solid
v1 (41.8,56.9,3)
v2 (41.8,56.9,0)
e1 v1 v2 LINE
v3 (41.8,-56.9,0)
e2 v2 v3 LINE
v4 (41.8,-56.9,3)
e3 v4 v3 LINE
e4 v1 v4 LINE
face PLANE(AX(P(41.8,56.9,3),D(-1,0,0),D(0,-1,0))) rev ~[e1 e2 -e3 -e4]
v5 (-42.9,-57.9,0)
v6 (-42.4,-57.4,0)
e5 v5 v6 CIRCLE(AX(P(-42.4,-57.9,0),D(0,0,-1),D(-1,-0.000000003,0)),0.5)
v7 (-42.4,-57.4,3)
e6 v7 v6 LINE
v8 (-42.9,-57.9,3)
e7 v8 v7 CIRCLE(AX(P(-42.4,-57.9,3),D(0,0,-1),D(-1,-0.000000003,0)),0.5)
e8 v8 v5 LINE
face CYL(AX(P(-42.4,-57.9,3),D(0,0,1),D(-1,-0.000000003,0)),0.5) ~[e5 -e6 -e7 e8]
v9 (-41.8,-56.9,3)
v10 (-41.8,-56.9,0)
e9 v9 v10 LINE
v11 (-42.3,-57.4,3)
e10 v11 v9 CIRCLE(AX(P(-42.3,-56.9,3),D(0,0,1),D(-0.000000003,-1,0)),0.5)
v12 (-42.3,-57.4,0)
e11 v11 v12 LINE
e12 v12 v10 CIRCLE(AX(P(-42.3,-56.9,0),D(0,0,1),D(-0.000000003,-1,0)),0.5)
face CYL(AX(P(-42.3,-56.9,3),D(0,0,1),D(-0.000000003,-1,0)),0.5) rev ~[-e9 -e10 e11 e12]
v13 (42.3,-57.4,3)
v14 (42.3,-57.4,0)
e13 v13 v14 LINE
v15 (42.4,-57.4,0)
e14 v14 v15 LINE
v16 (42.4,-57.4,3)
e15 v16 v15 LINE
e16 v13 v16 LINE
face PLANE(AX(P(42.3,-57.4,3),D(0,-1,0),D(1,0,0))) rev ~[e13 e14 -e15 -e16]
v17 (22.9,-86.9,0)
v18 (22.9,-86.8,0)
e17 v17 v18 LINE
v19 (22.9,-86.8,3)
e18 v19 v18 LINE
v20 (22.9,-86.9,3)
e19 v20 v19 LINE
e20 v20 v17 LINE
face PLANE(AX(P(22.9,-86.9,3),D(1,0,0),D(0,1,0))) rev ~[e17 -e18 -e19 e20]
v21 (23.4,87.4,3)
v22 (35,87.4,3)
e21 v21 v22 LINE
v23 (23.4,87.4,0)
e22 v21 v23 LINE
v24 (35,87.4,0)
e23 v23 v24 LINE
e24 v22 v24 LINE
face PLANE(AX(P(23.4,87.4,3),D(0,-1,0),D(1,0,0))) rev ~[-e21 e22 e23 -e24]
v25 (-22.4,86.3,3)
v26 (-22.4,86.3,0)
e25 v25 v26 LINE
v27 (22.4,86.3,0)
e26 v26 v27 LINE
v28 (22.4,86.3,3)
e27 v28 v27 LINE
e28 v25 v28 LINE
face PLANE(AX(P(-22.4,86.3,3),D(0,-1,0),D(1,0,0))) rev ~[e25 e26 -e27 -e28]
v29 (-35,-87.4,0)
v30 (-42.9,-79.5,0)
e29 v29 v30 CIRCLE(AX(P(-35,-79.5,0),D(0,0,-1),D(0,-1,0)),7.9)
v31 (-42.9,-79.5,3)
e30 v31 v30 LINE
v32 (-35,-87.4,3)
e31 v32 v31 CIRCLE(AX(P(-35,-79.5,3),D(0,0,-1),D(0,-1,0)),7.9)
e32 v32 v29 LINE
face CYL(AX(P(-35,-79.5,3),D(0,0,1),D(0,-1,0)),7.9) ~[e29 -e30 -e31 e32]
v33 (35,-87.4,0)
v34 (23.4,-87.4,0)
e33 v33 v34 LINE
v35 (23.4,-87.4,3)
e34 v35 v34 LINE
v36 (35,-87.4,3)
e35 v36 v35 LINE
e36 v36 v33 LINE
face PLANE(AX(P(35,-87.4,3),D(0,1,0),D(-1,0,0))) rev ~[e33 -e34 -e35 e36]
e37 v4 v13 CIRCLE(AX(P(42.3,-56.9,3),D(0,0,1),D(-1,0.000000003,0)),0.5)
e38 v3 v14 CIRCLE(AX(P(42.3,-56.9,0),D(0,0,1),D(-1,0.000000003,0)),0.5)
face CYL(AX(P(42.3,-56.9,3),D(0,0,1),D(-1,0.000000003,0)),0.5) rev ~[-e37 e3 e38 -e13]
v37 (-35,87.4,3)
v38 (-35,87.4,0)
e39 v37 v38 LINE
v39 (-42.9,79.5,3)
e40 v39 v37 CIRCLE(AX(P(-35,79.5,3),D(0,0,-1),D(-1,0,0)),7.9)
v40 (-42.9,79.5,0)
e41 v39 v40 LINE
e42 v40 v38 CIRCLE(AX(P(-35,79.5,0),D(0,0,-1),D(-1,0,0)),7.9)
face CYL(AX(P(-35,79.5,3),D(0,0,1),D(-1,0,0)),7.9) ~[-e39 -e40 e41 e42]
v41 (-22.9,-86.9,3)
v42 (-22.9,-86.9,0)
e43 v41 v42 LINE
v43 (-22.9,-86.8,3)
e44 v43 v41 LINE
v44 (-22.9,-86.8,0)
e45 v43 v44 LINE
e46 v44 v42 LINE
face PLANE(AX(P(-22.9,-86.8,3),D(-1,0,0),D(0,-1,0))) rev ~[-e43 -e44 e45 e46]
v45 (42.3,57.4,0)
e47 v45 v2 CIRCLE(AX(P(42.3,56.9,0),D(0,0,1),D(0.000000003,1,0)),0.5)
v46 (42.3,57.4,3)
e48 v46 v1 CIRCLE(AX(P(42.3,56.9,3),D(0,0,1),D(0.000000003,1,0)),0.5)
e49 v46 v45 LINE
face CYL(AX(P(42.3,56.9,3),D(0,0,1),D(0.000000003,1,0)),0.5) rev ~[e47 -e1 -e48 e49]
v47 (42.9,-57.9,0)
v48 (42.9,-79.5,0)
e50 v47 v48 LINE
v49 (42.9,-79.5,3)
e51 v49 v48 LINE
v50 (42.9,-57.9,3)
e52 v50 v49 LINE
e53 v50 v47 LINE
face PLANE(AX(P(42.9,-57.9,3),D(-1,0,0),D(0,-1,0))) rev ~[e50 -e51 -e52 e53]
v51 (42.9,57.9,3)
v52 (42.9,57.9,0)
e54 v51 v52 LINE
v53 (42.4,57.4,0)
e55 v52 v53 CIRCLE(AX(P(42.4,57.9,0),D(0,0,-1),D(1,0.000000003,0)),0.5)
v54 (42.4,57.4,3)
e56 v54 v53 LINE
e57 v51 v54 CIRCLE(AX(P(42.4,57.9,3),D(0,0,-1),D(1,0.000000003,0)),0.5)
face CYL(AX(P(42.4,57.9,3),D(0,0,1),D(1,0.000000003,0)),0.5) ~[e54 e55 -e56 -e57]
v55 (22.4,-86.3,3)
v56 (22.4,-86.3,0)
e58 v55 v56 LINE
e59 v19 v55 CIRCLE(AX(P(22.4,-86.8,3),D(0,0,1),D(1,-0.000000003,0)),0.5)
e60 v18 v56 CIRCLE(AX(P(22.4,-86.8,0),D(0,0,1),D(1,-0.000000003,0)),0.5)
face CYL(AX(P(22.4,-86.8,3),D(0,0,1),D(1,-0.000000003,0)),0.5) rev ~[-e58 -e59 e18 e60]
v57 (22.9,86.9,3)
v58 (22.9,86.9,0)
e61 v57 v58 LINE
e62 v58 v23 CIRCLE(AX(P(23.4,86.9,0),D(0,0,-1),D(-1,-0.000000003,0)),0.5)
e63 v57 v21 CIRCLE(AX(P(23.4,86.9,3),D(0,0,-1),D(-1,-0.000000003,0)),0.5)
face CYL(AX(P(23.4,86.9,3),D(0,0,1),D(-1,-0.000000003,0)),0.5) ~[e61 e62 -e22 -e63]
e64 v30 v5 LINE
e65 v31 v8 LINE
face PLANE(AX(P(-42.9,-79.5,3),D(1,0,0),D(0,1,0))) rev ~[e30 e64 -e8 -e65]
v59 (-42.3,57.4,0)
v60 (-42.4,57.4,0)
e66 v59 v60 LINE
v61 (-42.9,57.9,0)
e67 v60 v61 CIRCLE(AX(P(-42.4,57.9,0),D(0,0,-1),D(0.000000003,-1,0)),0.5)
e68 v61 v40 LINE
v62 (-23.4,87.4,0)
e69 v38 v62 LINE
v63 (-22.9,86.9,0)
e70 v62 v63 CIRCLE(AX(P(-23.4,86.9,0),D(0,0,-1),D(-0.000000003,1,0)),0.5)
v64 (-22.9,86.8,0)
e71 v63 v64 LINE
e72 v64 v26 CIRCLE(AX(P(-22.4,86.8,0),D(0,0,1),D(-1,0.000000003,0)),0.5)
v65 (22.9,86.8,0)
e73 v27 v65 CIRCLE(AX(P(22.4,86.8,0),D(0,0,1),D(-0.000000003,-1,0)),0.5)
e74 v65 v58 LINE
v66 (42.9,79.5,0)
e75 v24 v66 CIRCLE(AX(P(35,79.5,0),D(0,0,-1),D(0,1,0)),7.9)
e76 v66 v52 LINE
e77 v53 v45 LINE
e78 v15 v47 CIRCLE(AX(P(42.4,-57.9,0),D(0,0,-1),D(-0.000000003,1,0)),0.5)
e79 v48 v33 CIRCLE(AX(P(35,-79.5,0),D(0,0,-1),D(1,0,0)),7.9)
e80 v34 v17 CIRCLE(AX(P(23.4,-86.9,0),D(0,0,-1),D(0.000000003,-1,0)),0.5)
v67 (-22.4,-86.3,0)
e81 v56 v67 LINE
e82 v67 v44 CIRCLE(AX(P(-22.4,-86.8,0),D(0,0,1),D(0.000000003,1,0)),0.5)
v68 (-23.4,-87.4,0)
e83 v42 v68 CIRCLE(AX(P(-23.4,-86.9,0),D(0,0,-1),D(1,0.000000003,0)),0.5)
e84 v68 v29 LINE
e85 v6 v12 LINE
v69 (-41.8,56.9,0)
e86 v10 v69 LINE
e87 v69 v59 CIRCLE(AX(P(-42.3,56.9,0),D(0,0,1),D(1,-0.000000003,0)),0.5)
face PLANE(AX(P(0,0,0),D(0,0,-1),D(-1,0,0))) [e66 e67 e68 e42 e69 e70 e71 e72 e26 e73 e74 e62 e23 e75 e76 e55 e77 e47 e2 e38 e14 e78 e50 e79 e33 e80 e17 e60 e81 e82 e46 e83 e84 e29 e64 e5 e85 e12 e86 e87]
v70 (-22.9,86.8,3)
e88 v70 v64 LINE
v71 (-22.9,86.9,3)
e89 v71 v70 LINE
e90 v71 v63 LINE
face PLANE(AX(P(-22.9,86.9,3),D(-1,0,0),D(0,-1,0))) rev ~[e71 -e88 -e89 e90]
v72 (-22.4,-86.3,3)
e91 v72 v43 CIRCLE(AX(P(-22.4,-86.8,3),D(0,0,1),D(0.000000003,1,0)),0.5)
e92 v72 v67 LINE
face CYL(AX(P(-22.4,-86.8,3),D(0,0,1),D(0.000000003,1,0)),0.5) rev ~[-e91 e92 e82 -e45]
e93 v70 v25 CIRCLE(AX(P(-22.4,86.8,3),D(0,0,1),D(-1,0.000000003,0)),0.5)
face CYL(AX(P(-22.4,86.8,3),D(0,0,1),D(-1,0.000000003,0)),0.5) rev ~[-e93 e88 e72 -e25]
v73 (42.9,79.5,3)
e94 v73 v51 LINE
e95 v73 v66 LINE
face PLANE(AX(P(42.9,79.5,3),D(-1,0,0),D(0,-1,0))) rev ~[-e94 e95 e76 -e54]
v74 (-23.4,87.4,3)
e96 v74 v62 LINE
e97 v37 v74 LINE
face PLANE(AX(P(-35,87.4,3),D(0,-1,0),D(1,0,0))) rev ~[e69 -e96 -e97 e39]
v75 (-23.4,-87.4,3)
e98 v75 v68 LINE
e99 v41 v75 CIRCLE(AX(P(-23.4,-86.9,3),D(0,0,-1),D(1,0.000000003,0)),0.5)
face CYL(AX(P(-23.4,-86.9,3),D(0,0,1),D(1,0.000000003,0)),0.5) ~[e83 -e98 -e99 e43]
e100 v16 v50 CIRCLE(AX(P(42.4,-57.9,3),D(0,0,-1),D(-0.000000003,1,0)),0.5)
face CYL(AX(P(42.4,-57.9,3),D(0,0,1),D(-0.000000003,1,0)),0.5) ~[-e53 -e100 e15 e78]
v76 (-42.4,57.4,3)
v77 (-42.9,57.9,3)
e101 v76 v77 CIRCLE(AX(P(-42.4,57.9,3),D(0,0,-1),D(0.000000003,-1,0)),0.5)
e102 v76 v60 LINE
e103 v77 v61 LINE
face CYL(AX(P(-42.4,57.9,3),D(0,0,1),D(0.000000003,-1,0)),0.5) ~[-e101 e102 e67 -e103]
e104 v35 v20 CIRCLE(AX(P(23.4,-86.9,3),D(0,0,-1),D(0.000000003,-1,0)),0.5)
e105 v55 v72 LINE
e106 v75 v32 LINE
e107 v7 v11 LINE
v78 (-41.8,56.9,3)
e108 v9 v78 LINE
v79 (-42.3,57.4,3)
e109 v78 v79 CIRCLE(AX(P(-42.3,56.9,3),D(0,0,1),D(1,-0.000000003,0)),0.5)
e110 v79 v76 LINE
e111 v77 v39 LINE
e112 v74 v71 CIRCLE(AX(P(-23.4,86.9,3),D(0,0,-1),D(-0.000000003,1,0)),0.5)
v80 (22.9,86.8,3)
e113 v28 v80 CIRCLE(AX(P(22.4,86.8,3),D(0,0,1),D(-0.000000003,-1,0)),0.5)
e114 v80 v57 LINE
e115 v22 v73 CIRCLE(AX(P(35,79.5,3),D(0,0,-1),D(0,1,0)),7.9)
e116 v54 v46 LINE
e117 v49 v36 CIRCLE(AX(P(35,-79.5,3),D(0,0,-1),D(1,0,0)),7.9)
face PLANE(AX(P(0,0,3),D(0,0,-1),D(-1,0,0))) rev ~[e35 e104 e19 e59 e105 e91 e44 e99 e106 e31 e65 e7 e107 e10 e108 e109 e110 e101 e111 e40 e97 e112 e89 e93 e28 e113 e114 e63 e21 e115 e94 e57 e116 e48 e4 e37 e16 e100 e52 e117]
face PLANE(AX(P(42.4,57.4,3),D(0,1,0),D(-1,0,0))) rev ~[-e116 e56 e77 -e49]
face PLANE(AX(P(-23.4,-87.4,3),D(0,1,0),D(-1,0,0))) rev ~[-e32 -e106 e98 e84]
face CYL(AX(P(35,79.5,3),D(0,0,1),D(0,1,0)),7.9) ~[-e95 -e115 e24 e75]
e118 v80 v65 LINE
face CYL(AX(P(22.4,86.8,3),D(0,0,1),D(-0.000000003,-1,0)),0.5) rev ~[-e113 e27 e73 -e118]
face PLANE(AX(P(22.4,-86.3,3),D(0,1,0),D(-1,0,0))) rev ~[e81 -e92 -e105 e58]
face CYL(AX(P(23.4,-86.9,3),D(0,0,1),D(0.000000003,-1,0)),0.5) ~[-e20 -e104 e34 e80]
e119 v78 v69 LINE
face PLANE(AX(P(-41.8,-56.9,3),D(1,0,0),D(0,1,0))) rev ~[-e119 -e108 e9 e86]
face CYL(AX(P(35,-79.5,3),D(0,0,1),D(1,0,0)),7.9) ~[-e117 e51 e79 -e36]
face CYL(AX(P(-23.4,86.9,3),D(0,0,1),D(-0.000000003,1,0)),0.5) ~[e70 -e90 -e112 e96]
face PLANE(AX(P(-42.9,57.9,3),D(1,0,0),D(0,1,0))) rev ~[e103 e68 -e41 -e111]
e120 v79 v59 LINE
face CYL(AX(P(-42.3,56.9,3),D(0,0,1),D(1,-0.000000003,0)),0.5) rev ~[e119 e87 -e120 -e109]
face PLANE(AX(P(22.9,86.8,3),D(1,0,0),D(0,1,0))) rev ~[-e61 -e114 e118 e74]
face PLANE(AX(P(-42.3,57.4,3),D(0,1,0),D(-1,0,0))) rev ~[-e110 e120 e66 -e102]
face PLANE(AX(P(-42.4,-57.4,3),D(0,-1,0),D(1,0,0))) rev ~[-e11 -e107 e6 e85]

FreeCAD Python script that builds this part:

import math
import FreeCAD as App
import Part
import Sketcher

V = App.Vector
Q = App.Units.Quantity

doc = App.newDocument("Part")
params = doc.addObject("Spreadsheet::Sheet", "Params")
for row, (alias, value) in enumerate([
    ("sketch1_radius", "0.5 mm"),
    ("sketch1_radius2", "7.9 mm"),
    ("sketch1_width", "0.1 mm"),
    ("sketch1_width2", "11.6 mm"),
    ("sketch1_width3", "44.8 mm"),
    ("pad1_length", "3 mm"),
], start=1):
    params.set(f"A{row}", alias)
    params.set(f"B{row}", "=" + value)
    params.setAlias(f"B{row}", alias)

body = doc.addObject("PartDesign::Body", "Body")

sketch1 = doc.addObject("Sketcher::SketchObject", "Sketch")
body.addObject(sketch1)
sketch1.AttachmentSupport = (doc.XY_Plane, [""])
sketch1.MapMode = "FlatFace"
sketch1.AttachmentOffset = App.Placement(V(0, 0, 3), App.Rotation())
sketch1.addGeometry([
    Part.LineSegment(V(42.3, 57.4, 0), V(42.4, 57.4, 0)),
    Part.ArcOfCircle(Part.Circle(V(42.4, 57.9, 0), V(0, 0, 1), 0.5), math.radians(-90), math.radians(0)),
    Part.LineSegment(V(42.9, 57.9, 0), V(42.9, 79.5, 0)),
    Part.ArcOfCircle(Part.Circle(V(35, 79.5, 0), V(0, 0, 1), 7.9), math.radians(0), math.radians(90)),
    Part.LineSegment(V(35, 87.4, 0), V(23.4, 87.4, 0)),
    Part.ArcOfCircle(Part.Circle(V(23.4, 86.9, 0), V(0, 0, 1), 0.5), math.radians(90), math.radians(180)),
    Part.LineSegment(V(22.9, 86.9, 0), V(22.9, 86.8, 0)),
    Part.ArcOfCircle(Part.Circle(V(22.4, 86.8, 0), V(0, 0, 1), 0.5), math.radians(-90), math.radians(0)),
    Part.LineSegment(V(22.4, 86.3, 0), V(-22.4, 86.3, 0)),
    Part.ArcOfCircle(Part.Circle(V(-22.4, 86.8, 0), V(0, 0, 1), 0.5), math.radians(180), math.radians(270)),
    Part.LineSegment(V(-22.9, 86.8, 0), V(-22.9, 86.9, 0)),
    Part.ArcOfCircle(Part.Circle(V(-23.4, 86.9, 0), V(0, 0, 1), 0.5), math.radians(0), math.radians(90)),
    Part.LineSegment(V(-23.4, 87.4, 0), V(-35, 87.4, 0)),
    Part.ArcOfCircle(Part.Circle(V(-35, 79.5, 0), V(0, 0, 1), 7.9), math.radians(90), math.radians(180)),
    Part.LineSegment(V(-42.9, 79.5, 0), V(-42.9, 57.9, 0)),
    Part.ArcOfCircle(Part.Circle(V(-42.4, 57.9, 0), V(0, 0, 1), 0.5), math.radians(180), math.radians(270)),
    Part.LineSegment(V(-42.4, 57.4, 0), V(-42.3, 57.4, 0)),
    Part.ArcOfCircle(Part.Circle(V(-42.3, 56.9, 0), V(0, 0, 1), 0.5), math.radians(0), math.radians(90)),
    Part.LineSegment(V(-41.8, 56.9, 0), V(-41.8, -56.9, 0)),
    Part.ArcOfCircle(Part.Circle(V(-42.3, -56.9, 0), V(0, 0, 1), 0.5), math.radians(-90), math.radians(0)),
    Part.LineSegment(V(-42.3, -57.4, 0), V(-42.4, -57.4, 0)),
    Part.ArcOfCircle(Part.Circle(V(-42.4, -57.9, 0), V(0, 0, 1), 0.5), math.radians(90), math.radians(180)),
    Part.LineSegment(V(-42.9, -57.9, 0), V(-42.9, -79.5, 0)),
    Part.ArcOfCircle(Part.Circle(V(-35, -79.5, 0), V(0, 0, 1), 7.9), math.radians(-180), math.radians(-90)),
    Part.LineSegment(V(-35, -87.4, 0), V(-23.4, -87.4, 0)),
    Part.ArcOfCircle(Part.Circle(V(-23.4, -86.9, 0), V(0, 0, 1), 0.5), math.radians(-90), math.radians(0)),
    Part.LineSegment(V(-22.9, -86.9, 0), V(-22.9, -86.8, 0)),
    Part.ArcOfCircle(Part.Circle(V(-22.4, -86.8, 0), V(0, 0, 1), 0.5), math.radians(90), math.radians(180)),
    Part.LineSegment(V(-22.4, -86.3, 0), V(22.4, -86.3, 0)),
    Part.ArcOfCircle(Part.Circle(V(22.4, -86.8, 0), V(0, 0, 1), 0.5), math.radians(0), math.radians(90)),
    Part.LineSegment(V(22.9, -86.8, 0), V(22.9, -86.9, 0)),
    Part.ArcOfCircle(Part.Circle(V(23.4, -86.9, 0), V(0, 0, 1), 0.5), math.radians(180), math.radians(270)),
    Part.LineSegment(V(23.4, -87.4, 0), V(35, -87.4, 0)),
    Part.ArcOfCircle(Part.Circle(V(35, -79.5, 0), V(0, 0, 1), 7.9), math.radians(-90), math.radians(0)),
    Part.LineSegment(V(42.9, -79.5, 0), V(42.9, -57.9, 0)),
    Part.ArcOfCircle(Part.Circle(V(42.4, -57.9, 0), V(0, 0, 1), 0.5), math.radians(0), math.radians(90)),
    Part.LineSegment(V(42.4, -57.4, 0), V(42.3, -57.4, 0)),
    Part.ArcOfCircle(Part.Circle(V(42.3, -56.9, 0), V(0, 0, 1), 0.5), math.radians(180), math.radians(270)),
    Part.LineSegment(V(41.8, -56.9, 0), V(41.8, 56.9, 0)),
    Part.ArcOfCircle(Part.Circle(V(42.3, 56.9, 0), V(0, 0, 1), 0.5), math.radians(90), math.radians(180)),
], False)
sketch1.addConstraint([
    Sketcher.Constraint("Tangent", 0, 2, 1, 1),
    Sketcher.Constraint("Tangent", 1, 2, 2, 1),
    Sketcher.Constraint("Tangent", 2, 2, 3, 1),
    Sketcher.Constraint("Tangent", 3, 2, 4, 1),
    Sketcher.Constraint("Tangent", 4, 2, 5, 1),
    Sketcher.Constraint("Tangent", 5, 2, 6, 1),
    Sketcher.Constraint("Tangent", 6, 2, 7, 2),
    Sketcher.Constraint("Tangent", 7, 1, 8, 1),
    Sketcher.Constraint("Tangent", 8, 2, 9, 2),
    Sketcher.Constraint("Tangent", 9, 1, 10, 1),
    Sketcher.Constraint("Tangent", 10, 2, 11, 1),
    Sketcher.Constraint("Tangent", 11, 2, 12, 1),
    Sketcher.Constraint("Tangent", 12, 2, 13, 1),
    Sketcher.Constraint("Tangent", 13, 2, 14, 1),
    Sketcher.Constraint("Tangent", 14, 2, 15, 1),
    Sketcher.Constraint("Tangent", 15, 2, 16, 1),
    Sketcher.Constraint("Tangent", 16, 2, 17, 2),
    Sketcher.Constraint("Tangent", 17, 1, 18, 1),
    Sketcher.Constraint("Tangent", 18, 2, 19, 2),
    Sketcher.Constraint("Tangent", 19, 1, 20, 1),
    Sketcher.Constraint("Tangent", 20, 2, 21, 1),
    Sketcher.Constraint("Tangent", 21, 2, 22, 1),
    Sketcher.Constraint("Tangent", 22, 2, 23, 1),
    Sketcher.Constraint("Tangent", 23, 2, 24, 1),
    Sketcher.Constraint("Tangent", 24, 2, 25, 1),
    Sketcher.Constraint("Tangent", 25, 2, 26, 1),
    Sketcher.Constraint("Tangent", 26, 2, 27, 2),
    Sketcher.Constraint("Tangent", 27, 1, 28, 1),
    Sketcher.Constraint("Tangent", 28, 2, 29, 2),
    Sketcher.Constraint("Tangent", 29, 1, 30, 1),
    Sketcher.Constraint("Tangent", 30, 2, 31, 1),
    Sketcher.Constraint("Tangent", 31, 2, 32, 1),
    Sketcher.Constraint("Tangent", 32, 2, 33, 1),
    Sketcher.Constraint("Tangent", 33, 2, 34, 1),
    Sketcher.Constraint("Tangent", 34, 2, 35, 1),
    Sketcher.Constraint("Tangent", 35, 2, 36, 1),
    Sketcher.Constraint("Tangent", 36, 2, 37, 2),
    Sketcher.Constraint("Tangent", 37, 1, 38, 1),
    Sketcher.Constraint("Tangent", 38, 2, 39, 2),
    Sketcher.Constraint("Tangent", 39, 1, 0, 1),
    Sketcher.Constraint("Horizontal", 0),
    Sketcher.Constraint("Vertical", 2),
    Sketcher.Constraint("Horizontal", 4),
    Sketcher.Constraint("Vertical", 6),
    Sketcher.Constraint("Horizontal", 8),
    Sketcher.Constraint("Vertical", 10),
    Sketcher.Constraint("Horizontal", 12),
    Sketcher.Constraint("Vertical", 14),
    Sketcher.Constraint("Horizontal", 16),
    Sketcher.Constraint("Vertical", 18),
    Sketcher.Constraint("Horizontal", 20),
    Sketcher.Constraint("Vertical", 22),
    Sketcher.Constraint("Horizontal", 24),
    Sketcher.Constraint("Vertical", 26),
    Sketcher.Constraint("Horizontal", 28),
    Sketcher.Constraint("Vertical", 30),
    Sketcher.Constraint("Horizontal", 32),
    Sketcher.Constraint("Vertical", 34),
    Sketcher.Constraint("Horizontal", 36),
    Sketcher.Constraint("Vertical", 38),
    Sketcher.Constraint("Equal", 1, 5),
    Sketcher.Constraint("Equal", 5, 7),
    Sketcher.Constraint("Equal", 7, 9),
    Sketcher.Constraint("Equal", 9, 11),
    Sketcher.Constraint("Equal", 3, 13),
    Sketcher.Constraint("Equal", 11, 15),
    Sketcher.Constraint("Equal", 15, 17),
    Sketcher.Constraint("Equal", 17, 19),
    Sketcher.Constraint("Equal", 19, 21),
    Sketcher.Constraint("Equal", 13, 23),
    Sketcher.Constraint("Equal", 21, 25),
    Sketcher.Constraint("Equal", 25, 27),
    Sketcher.Constraint("Equal", 27, 29),
    Sketcher.Constraint("Equal", 29, 31),
    Sketcher.Constraint("Equal", 23, 33),
    Sketcher.Constraint("Equal", 31, 35),
    Sketcher.Constraint("Equal", 35, 37),
    Sketcher.Constraint("Equal", 37, 39),
    Sketcher.Constraint("Symmetric", 1, 3, 21, 3, -1, 1),
    Sketcher.Constraint("Symmetric", 5, 3, 25, 3, -1, 1),
    Sketcher.Constraint("Symmetric", 9, 3, 29, 3, -1, 1),
    Sketcher.Constraint("Symmetric", 13, 3, 33, 3, -1, 1),
    Sketcher.Constraint("Symmetric", 17, 3, 37, 3, -1, 1),
    Sketcher.Constraint("Symmetric", 5, 3, 11, 3, -2),
    Sketcher.Constraint("Symmetric", 1, 3, 15, 3, -2),
    Sketcher.Constraint("Equal", 36, 6),
    Sketcher.Constraint("Radius", 1, Q("0.5 mm")),
    Sketcher.Constraint("Radius", 3, Q("7.9 mm")),
    Sketcher.Constraint("DistanceX", 0, 1, 0, 2, Q("0.1 mm")),
    Sketcher.Constraint("DistanceX", 4, 2, 4, 1, Q("11.6 mm")),
    Sketcher.Constraint("DistanceX", 8, 2, 8, 1, Q("44.8 mm")),
    Sketcher.Constraint("DistanceY", 2, 1, 2, 2, Q("21.6 mm")),
    Sketcher.Constraint("DistanceY", 18, 2, 18, 1, Q("113.8 mm")),
])
sketch1.setExpression("Constraints[86]", "Params.sketch1_radius")
sketch1.setExpression("Constraints[87]", "Params.sketch1_radius2")
sketch1.setExpression("Constraints[88]", "Params.sketch1_width")
sketch1.setExpression("Constraints[89]", "Params.sketch1_width2")
sketch1.setExpression("Constraints[90]", "Params.sketch1_width3")
pad1 = doc.addObject("PartDesign::Pad", "Pad")
body.addObject(pad1)
pad1.Profile = sketch1
pad1.setExpression("Length", "Params.pad1_length")
pad1.Reversed = True

doc.recompute()
